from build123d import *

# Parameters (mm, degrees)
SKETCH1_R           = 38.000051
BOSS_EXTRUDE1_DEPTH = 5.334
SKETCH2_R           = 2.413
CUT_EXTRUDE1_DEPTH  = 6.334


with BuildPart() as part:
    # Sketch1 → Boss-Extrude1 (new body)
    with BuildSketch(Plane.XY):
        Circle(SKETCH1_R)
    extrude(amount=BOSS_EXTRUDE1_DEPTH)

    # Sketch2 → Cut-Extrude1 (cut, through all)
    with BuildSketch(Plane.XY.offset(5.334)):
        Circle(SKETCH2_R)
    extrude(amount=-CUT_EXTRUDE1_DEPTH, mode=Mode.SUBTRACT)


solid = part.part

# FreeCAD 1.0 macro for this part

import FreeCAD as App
import Part
import Sketcher
from FreeCAD import Vector
Q = App.Units.Quantity

doc = App.newDocument("Part")
params = doc.addObject("Spreadsheet::Sheet", "Params")
for row, (alias, value) in enumerate([
    ("pad1_length", "0.21 in"),
    ("sketch2_diameter", "0.19 in"),
], start=1):
    params.set(f"A{row}", alias)
    params.set(f"B{row}", "=" + value)
    params.setAlias(f"B{row}", alias)

body = doc.addObject("PartDesign::Body", "Body")

# Sketch on XY plane
sketch1 = doc.addObject("Sketcher::SketchObject", "Sketch")
body.addObject(sketch1)
sketch1.AttachmentSupport = (doc.XY_Plane, [""])
sketch1.MapMode = "FlatFace"
sketch1.addGeometry(Part.Circle(Vector(0, 0, 0), Vector(0, 0, 1), 38), False)
sketch1.addConstraint([
    Sketcher.Constraint("Coincident", 0, 3, -1, 1),
    Sketcher.Constraint("Diameter", 0, Q("76.000102 mm")),
])
pad1 = doc.addObject("PartDesign::Pad", "Pad")
body.addObject(pad1)
pad1.Profile = sketch1
pad1.setExpression("Length", "Params.pad1_length")

# Sketch on XY plane
sketch2 = doc.addObject("Sketcher::SketchObject", "Sketch001")
body.addObject(sketch2)
sketch2.AttachmentSupport = (doc.XY_Plane, [""])
sketch2.MapMode = "FlatFace"
sketch2.AttachmentOffset = App.Placement(Vector(0, 0, 0.21 * 25.4), App.Rotation())
sketch2.addGeometry(Part.Circle(Vector(0, 0, 0), Vector(0, 0, 1), 2.4), False)
sketch2.addConstraint([
    Sketcher.Constraint("Coincident", 0, 3, -1, 1),
    Sketcher.Constraint("Diameter", 0, Q("0.19 in")),
])
sketch2.setExpression("Constraints[1]", "Params.sketch2_diameter")
pocket1 = doc.addObject("PartDesign::Pocket", "Pocket")
body.addObject(pocket1)
pocket1.Profile = sketch2
pocket1.Type = "ThroughAll"

doc.recompute()
